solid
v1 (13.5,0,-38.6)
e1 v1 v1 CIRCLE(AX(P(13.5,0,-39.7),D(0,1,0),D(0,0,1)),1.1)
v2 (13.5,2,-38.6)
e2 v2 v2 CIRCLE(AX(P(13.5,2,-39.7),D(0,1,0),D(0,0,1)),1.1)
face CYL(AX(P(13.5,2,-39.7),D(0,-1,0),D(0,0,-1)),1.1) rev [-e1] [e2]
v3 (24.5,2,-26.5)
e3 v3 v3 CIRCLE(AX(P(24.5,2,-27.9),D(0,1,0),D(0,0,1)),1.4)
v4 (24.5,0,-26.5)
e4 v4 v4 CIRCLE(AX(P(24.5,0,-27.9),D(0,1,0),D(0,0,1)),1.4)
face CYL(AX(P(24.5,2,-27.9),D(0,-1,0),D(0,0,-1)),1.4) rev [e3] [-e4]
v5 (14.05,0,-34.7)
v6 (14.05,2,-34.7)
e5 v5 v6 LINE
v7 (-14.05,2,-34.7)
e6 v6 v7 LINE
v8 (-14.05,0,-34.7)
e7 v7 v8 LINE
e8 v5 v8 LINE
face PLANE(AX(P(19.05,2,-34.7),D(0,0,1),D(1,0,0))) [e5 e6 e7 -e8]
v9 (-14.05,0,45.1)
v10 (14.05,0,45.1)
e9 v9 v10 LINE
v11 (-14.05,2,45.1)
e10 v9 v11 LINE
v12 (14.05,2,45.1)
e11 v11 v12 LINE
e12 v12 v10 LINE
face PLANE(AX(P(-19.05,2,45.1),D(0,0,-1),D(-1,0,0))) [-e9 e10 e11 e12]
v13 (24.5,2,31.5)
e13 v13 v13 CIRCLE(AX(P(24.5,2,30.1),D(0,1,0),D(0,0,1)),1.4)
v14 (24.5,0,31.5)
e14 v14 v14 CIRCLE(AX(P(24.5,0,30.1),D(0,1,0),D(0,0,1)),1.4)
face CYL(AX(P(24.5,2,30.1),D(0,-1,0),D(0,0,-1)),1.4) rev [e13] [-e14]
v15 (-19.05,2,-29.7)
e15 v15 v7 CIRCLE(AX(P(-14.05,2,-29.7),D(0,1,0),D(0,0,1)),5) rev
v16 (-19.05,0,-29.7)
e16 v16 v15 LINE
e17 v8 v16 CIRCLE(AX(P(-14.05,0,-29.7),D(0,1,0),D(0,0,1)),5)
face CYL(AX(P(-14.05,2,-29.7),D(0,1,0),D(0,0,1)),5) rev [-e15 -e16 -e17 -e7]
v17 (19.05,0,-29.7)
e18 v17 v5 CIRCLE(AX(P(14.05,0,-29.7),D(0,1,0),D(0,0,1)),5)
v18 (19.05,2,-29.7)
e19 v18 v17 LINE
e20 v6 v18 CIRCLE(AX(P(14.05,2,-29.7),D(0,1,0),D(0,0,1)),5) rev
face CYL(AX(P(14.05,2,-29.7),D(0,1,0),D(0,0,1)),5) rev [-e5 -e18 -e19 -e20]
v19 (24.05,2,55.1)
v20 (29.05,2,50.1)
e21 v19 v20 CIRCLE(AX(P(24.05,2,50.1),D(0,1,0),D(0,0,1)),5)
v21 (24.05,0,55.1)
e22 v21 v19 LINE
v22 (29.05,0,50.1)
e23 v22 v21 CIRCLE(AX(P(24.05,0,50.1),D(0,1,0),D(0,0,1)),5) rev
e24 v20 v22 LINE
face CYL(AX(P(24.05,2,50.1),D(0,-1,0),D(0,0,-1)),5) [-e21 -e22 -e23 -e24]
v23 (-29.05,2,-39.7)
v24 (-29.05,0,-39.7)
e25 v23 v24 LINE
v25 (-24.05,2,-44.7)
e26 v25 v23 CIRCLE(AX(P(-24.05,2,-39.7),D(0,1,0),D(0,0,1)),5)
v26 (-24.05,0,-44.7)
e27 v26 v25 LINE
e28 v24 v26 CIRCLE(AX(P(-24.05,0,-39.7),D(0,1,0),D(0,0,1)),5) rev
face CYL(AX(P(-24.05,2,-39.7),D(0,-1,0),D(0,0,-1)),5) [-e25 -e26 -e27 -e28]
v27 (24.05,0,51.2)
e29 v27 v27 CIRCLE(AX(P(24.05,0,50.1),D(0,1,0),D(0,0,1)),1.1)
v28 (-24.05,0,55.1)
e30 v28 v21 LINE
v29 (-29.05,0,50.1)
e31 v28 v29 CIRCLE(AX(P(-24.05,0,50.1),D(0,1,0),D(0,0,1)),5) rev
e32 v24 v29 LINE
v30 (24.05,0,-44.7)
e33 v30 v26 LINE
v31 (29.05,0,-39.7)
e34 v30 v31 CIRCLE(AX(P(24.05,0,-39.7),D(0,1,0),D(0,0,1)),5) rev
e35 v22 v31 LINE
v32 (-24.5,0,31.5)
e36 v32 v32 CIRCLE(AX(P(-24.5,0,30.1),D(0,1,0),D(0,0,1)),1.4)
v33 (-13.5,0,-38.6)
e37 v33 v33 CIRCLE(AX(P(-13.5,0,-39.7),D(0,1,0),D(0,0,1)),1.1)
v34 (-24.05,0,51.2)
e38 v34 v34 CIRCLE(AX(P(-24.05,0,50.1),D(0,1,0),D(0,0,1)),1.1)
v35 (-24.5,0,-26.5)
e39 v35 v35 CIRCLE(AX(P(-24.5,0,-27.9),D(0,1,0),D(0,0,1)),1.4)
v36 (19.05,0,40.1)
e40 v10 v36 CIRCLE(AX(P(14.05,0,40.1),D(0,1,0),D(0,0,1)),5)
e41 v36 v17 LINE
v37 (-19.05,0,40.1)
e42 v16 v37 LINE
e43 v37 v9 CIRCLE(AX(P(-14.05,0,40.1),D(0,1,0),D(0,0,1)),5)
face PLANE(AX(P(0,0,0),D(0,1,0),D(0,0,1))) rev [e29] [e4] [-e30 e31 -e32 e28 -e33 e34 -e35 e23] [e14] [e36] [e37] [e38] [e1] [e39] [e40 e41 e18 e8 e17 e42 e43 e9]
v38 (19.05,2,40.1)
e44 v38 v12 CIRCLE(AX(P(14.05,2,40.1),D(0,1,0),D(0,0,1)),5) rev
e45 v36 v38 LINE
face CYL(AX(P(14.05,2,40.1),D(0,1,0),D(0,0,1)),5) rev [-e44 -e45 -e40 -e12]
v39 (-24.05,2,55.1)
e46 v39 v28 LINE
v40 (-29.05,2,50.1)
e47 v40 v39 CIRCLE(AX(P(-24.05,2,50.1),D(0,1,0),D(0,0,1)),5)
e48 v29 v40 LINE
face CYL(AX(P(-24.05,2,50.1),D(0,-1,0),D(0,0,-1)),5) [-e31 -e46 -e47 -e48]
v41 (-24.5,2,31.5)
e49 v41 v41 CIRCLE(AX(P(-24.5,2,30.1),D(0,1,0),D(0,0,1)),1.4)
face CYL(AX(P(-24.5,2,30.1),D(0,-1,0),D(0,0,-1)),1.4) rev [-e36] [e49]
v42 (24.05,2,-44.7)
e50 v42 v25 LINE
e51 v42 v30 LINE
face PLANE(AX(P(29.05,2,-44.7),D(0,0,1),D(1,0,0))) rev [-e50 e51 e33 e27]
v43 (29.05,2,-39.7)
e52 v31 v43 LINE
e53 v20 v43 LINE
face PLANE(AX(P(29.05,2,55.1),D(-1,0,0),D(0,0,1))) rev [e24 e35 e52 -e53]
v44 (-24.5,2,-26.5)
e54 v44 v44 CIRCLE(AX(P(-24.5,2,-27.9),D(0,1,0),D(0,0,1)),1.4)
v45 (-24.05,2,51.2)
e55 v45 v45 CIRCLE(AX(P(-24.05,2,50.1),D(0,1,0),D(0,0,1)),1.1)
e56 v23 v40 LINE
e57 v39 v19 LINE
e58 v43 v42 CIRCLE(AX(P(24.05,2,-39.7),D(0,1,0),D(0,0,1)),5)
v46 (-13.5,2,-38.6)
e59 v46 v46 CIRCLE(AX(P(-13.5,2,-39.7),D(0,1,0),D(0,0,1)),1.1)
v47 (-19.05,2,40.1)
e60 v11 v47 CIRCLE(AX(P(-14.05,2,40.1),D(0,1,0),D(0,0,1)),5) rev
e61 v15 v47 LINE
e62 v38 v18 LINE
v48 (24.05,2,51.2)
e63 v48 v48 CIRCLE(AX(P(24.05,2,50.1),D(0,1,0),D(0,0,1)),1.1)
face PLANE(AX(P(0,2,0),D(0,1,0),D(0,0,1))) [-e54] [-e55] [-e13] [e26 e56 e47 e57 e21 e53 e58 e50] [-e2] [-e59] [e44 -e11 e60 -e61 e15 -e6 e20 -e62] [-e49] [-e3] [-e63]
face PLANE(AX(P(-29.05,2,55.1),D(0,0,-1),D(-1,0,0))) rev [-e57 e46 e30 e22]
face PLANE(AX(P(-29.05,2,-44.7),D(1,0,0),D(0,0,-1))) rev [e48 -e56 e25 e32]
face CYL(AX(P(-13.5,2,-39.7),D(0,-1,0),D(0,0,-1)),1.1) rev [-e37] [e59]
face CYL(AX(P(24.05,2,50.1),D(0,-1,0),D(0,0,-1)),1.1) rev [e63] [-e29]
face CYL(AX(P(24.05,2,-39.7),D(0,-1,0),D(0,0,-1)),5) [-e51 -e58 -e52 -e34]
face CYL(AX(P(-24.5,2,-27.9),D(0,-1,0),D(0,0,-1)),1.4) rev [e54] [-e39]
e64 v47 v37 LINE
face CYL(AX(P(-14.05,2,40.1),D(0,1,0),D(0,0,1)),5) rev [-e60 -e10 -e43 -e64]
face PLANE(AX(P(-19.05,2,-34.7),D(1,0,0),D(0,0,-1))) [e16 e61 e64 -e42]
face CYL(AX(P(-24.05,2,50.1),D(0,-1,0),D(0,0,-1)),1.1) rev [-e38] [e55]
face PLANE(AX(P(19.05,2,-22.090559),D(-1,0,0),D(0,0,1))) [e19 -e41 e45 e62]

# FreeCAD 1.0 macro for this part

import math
import FreeCAD as App
import Part
import Sketcher
Q = App.Units.Quantity


def edges_at(feature, points):
    """Names of the edges that pass closest to the given points."""
    edges = feature.Shape.Edges
    near = lambda p: min(range(len(edges)), key=lambda i: edges[i].distToShape(Part.Vertex(*p))[0])
    return sorted({f"Edge{near(p) + 1}" for p in points})

doc = App.newDocument("Part")
params = doc.addObject("Spreadsheet::Sheet", "Params")
for row, (alias, value) in enumerate([
    ("sketch1_diameter", "2.2 mm"),
    ("sketch1_diameter2", "2.8 mm"),
    ("sketch1_diameter3", "1.9 mm"),
    ("sketch1_radius", "2.15 mm"),
    ("sketch1_width", "58.1 mm"),
    ("pad1_length", "2 mm"),
    ("fillet_radius", "5 mm"),
    ("fillet2_radius", "3 mm"),
    ("fillet3_radius", "10 mm"),
    ("sketch2_diameter", "3.2 mm"),
    ("sketch2_diameter2", "1.9 mm"),
    ("pad2_length", "1 mm"),
    ("sketch3_width", "38.1 mm"),
], start=1):
    params.set(f"A{row}", alias)
    params.set(f"B{row}", "=" + value)
    params.setAlias(f"B{row}", alias)

body = doc.addObject("PartDesign::Body", "Body")

sketch1 = body.newObject("Sketcher::SketchObject", "Sketch")
sketch1.AttachmentSupport = (doc.getObject("XZ_Plane"), [""])
sketch1.MapMode = "FlatFace"
sketch1.addGeometry([
    Part.LineSegment(App.Vector(-29.05, -44.7, 0), App.Vector(-29.05, 55.1, 0)),
    Part.LineSegment(App.Vector(-29.05, 55.1, 0), App.Vector(29.05, 55.1, 0)),
    Part.LineSegment(App.Vector(29.05, 55.1, 0), App.Vector(29.05, -44.7, 0)),
    Part.LineSegment(App.Vector(29.05, -44.7, 0), App.Vector(-29.05, -44.7, 0)),
    Part.Circle(App.Vector(-24.05, 50.1, 0), App.Vector(0, 0, 1), 1.1),
    Part.Circle(App.Vector(-24.5, 30.1, 0), App.Vector(0, 0, 1), 1.4),
    Part.Circle(App.Vector(-10.3, 10.3, 0), App.Vector(0, 0, 1), 0.95),
    Part.Circle(App.Vector(24.05, 50.1, 0), App.Vector(0, 0, 1), 1.1),
    Part.Circle(App.Vector(24.5, 30.1, 0), App.Vector(0, 0, 1), 1.4),
    Part.Circle(App.Vector(10.3, 10.3, 0), App.Vector(0, 0, 1), 0.95),
    Part.LineSegment(App.Vector(19.05, 22.090559, 0), App.Vector(19.05, 45.1, 0)),
    Part.LineSegment(App.Vector(19.05, 45.1, 0), App.Vector(-19.05, 45.1, 0)),
    Part.LineSegment(App.Vector(-19.05, 45.1, 0), App.Vector(-19.05, 22.090559, 0)),
    Part.LineSegment(App.Vector(-19.05, 22.090559, 0), App.Vector(-8.77972, 11.82028, 0)),
    Part.ArcOfCircle(Part.Circle(App.Vector(-10.3, 10.3, 0), App.Vector(0, 0, 1), 2.15), math.radians(-135), math.radians(45)),
    Part.LineSegment(App.Vector(-11.82028, 8.77972, 0), App.Vector(-19.05, 16.009441, 0)),
    Part.LineSegment(App.Vector(-19.05, 16.009441, 0), App.Vector(-19.05, -16.009441, 0)),
    Part.LineSegment(App.Vector(-19.05, -16.009441, 0), App.Vector(-11.82028, -8.77972, 0)),
    Part.ArcOfCircle(Part.Circle(App.Vector(-10.3, -10.3, 0), App.Vector(0, 0, 1), 2.15), math.radians(-45), math.radians(135)),
    Part.LineSegment(App.Vector(-8.77972, -11.82028, 0), App.Vector(-19.05, -22.090559, 0)),
    Part.LineSegment(App.Vector(-19.05, -22.090559, 0), App.Vector(-19.05, -34.7, 0)),
    Part.LineSegment(App.Vector(-19.05, -34.7, 0), App.Vector(19.05, -34.7, 0)),
    Part.LineSegment(App.Vector(19.05, -34.7, 0), App.Vector(19.05, -22.090559, 0)),
    Part.LineSegment(App.Vector(19.05, -22.090559, 0), App.Vector(8.77972, -11.82028, 0)),
    Part.ArcOfCircle(Part.Circle(App.Vector(10.3, -10.3, 0), App.Vector(0, 0, 1), 2.15), math.radians(45), math.radians(225)),
    Part.LineSegment(App.Vector(11.82028, -8.77972, 0), App.Vector(19.05, -16.009441, 0)),
    Part.LineSegment(App.Vector(19.05, -16.009441, 0), App.Vector(19.05, 16.009441, 0)),
    Part.LineSegment(App.Vector(19.05, 16.009441, 0), App.Vector(11.82028, 8.77972, 0)),
    Part.ArcOfCircle(Part.Circle(App.Vector(10.3, 10.3, 0), App.Vector(0, 0, 1), 2.15), math.radians(135), math.radians(315)),
    Part.LineSegment(App.Vector(8.77972, 11.82028, 0), App.Vector(19.05, 22.090559, 0)),
    Part.Circle(App.Vector(-10.3, -10.3, 0), App.Vector(0, 0, 1), 0.95),
    Part.Circle(App.Vector(-24.5, -27.9, 0), App.Vector(0, 0, 1), 1.4),
    Part.Circle(App.Vector(-13.5, -39.7, 0), App.Vector(0, 0, 1), 1.1),
    Part.Circle(App.Vector(10.3, -10.3, 0), App.Vector(0, 0, 1), 0.95),
    Part.Circle(App.Vector(24.5, -27.9, 0), App.Vector(0, 0, 1), 1.4),
    Part.Circle(App.Vector(13.5, -39.7, 0), App.Vector(0, 0, 1), 1.1),
], False)
sketch1.addConstraint([
    Sketcher.Constraint("Coincident", 0, 2, 1, 1),
    Sketcher.Constraint("Coincident", 1, 2, 2, 1),
    Sketcher.Constraint("Coincident", 2, 2, 3, 1),
    Sketcher.Constraint("Coincident", 3, 2, 0, 1),
    Sketcher.Constraint("Coincident", 10, 2, 11, 1),
    Sketcher.Constraint("Coincident", 11, 2, 12, 1),
    Sketcher.Constraint("Coincident", 12, 2, 13, 1),
    Sketcher.Constraint("Tangent", 13, 2, 14, 2),
    Sketcher.Constraint("Tangent", 14, 1, 15, 1),
    Sketcher.Constraint("Coincident", 15, 2, 16, 1),
    Sketcher.Constraint("Coincident", 16, 2, 17, 1),
    Sketcher.Constraint("Tangent", 17, 2, 18, 2),
    Sketcher.Constraint("Tangent", 18, 1, 19, 1),
    Sketcher.Constraint("Coincident", 19, 2, 20, 1),
    Sketcher.Constraint("Coincident", 20, 2, 21, 1),
    Sketcher.Constraint("Coincident", 21, 2, 22, 1),
    Sketcher.Constraint("Coincident", 22, 2, 23, 1),
    Sketcher.Constraint("Tangent", 23, 2, 24, 2),
    Sketcher.Constraint("Tangent", 24, 1, 25, 1),
    Sketcher.Constraint("Coincident", 25, 2, 26, 1),
    Sketcher.Constraint("Coincident", 26, 2, 27, 1),
    Sketcher.Constraint("Tangent", 27, 2, 28, 2),
    Sketcher.Constraint("Tangent", 28, 1, 29, 1),
    Sketcher.Constraint("Coincident", 29, 2, 10, 1),
    Sketcher.Constraint("Vertical", 0),
    Sketcher.Constraint("Horizontal", 1),
    Sketcher.Constraint("Vertical", 2),
    Sketcher.Constraint("Horizontal", 3),
    Sketcher.Constraint("Vertical", 10),
    Sketcher.Constraint("Horizontal", 11),
    Sketcher.Constraint("Vertical", 12),
    Sketcher.Constraint("Vertical", 16),
    Sketcher.Constraint("Vertical", 20),
    Sketcher.Constraint("Horizontal", 21),
    Sketcher.Constraint("Vertical", 22),
    Sketcher.Constraint("Vertical", 26),
    Sketcher.Constraint("Coincident", 14, 3, 6, 3),
    Sketcher.Constraint("Coincident", 28, 3, 9, 3),
    Sketcher.Constraint("Coincident", 30, 3, 18, 3),
    Sketcher.Constraint("Coincident", 33, 3, 24, 3),
    Sketcher.Constraint("Equal", 4, 7),
    Sketcher.Constraint("Equal", 5, 8),
    Sketcher.Constraint("Equal", 6, 9),
    Sketcher.Constraint("Equal", 14, 18),
    Sketcher.Constraint("Equal", 18, 24),
    Sketcher.Constraint("Equal", 24, 28),
    Sketcher.Constraint("Equal", 9, 30),
    Sketcher.Constraint("Equal", 8, 31),
    Sketcher.Constraint("Equal", 7, 32),
    Sketcher.Constraint("Equal", 30, 33),
    Sketcher.Constraint("Equal", 31, 34),
    Sketcher.Constraint("Equal", 32, 35),
    Sketcher.Constraint("Symmetric", 9, 3, 18, 3, -1, 1),
    Sketcher.Constraint("Symmetric", 6, 3, 24, 3, -1, 1),
    Sketcher.Constraint("Symmetric", 12, 2, 22, 2, -1, 1),
    Sketcher.Constraint("Symmetric", 15, 2, 25, 2, -1, 1),
    Sketcher.Constraint("Symmetric", 19, 2, 29, 2, -1, 1),
    Sketcher.Constraint("Symmetric", 4, 3, 7, 3, -2),
    Sketcher.Constraint("Symmetric", 5, 3, 8, 3, -2),
    Sketcher.Constraint("Symmetric", 6, 3, 9, 3, -2),
    Sketcher.Constraint("Symmetric", 31, 3, 34, 3, -2),
    Sketcher.Constraint("Symmetric", 32, 3, 35, 3, -2),
    Sketcher.Constraint("Symmetric", 19, 2, 22, 2, -2),
    Sketcher.Constraint("Parallel", 13, 15),
    Sketcher.Constraint("Perpendicular", 15, 17),
    Sketcher.Constraint("Parallel", 17, 19),
    Sketcher.Constraint("Perpendicular", 25, 27),
    Sketcher.Constraint("Vertical", 5, 3, 31, 3),
    Sketcher.Constraint("Vertical", 12, 2, 15, 2),
    Sketcher.Constraint("Diameter", 4, Q("2.2 mm")),
    Sketcher.Constraint("Diameter", 5, Q("2.8 mm")),
    Sketcher.Constraint("Diameter", 6, Q("1.9 mm")),
    Sketcher.Constraint("Radius", 14, Q("2.15 mm")),
    Sketcher.Constraint("DistanceX", 1, 1, 1, 2, Q("58.1 mm")),
    Sketcher.Constraint("DistanceX", 11, 2, 11, 1, Q("38.1 mm")),
    Sketcher.Constraint("DistanceY", 0, 1, 0, 2, Q("99.8 mm")),
    Sketcher.Constraint("DistanceY", 5, 3, 4, 3, Q("20 mm")),
    Sketcher.Constraint("DistanceX", 5, 3, 8, 3, Q("49 mm")),
    Sketcher.Constraint("DistanceX", 31, 3, 32, 3, Q("11 mm")),
    Sketcher.Constraint("DistanceY", 32, 3, 6, 3, Q("50 mm")),
    Sketcher.Constraint("DistanceX", 0, 2, 4, 3, Q("5 mm")),
    Sketcher.Constraint("DistanceY", 4, 3, 0, 2, Q("5 mm")),
    Sketcher.Constraint("DistanceX", 7, 3, 1, 2, Q("5 mm")),
    Sketcher.Constraint("DistanceY", 2, 2, 35, 3, Q("5 mm")),
    Sketcher.Constraint("DistanceY", 10, 2, 7, 3, Q("5 mm")),
    Sketcher.Constraint("DistanceY", 32, 3, 20, 2, Q("5 mm")),
    Sketcher.Constraint("DistanceY", -1, 1, 4, 3, Q("50.1 mm")),
    Sketcher.Constraint("DistanceX", 6, 3, -1, 1, Q("10.3 mm")),
    Sketcher.Constraint("DistanceY", 31, 3, -1, 1, Q("27.9 mm")),
])
sketch1.setExpression("Constraints[69]", "Params.sketch1_diameter")
sketch1.setExpression("Constraints[70]", "Params.sketch1_diameter2")
sketch1.setExpression("Constraints[71]", "Params.sketch1_diameter3")
sketch1.setExpression("Constraints[72]", "Params.sketch1_radius")
sketch1.setExpression("Constraints[73]", "Params.sketch1_width")
pad1 = body.newObject("PartDesign::Pad", "Pad")
pad1.Profile = sketch1
pad1.setExpression("Length", "Params.pad1_length")
pad1.Reversed = True
doc.recompute()

fillet = body.newObject("PartDesign::Fillet", "Fillet")
fillet.Base = (pad1, edges_at(pad1, [
    (19.05, 1, -34.7),
    (-19.05, 1, -34.7),
    (-19.05, 1, 45.1),
    (19.05, 1, 45.1),
    (29.05, 1, -44.7),
    (29.05, 1, 55.1),
    (-29.05, 1, 55.1),
    (-29.05, 1, -44.7),
]))
fillet.setExpression("Radius", "Params.fillet_radius")
doc.recompute()

fillet2 = body.newObject("PartDesign::Fillet", "Fillet001")
fillet2.Base = (fillet, edges_at(fillet, [
    (-19.05, 1, -16.009),
    (-19.05, 1, 16.009),
    (19.05, 1, 16.009),
    (19.05, 1, -16.009),
]))
fillet2.setExpression("Radius", "Params.fillet2_radius")
doc.recompute()

fillet3 = body.newObject("PartDesign::Fillet", "Fillet002")
fillet3.Base = (fillet2, edges_at(fillet2, [
    (19.05, 1, -22.091),
    (-19.05, 1, -22.091),
    (-19.05, 1, 22.091),
    (19.05, 1, 22.091),
]))
fillet3.setExpression("Radius", "Params.fillet3_radius")

sketch2 = body.newObject("Sketcher::SketchObject", "Sketch001")
sketch2.AttachmentSupport = (doc.getObject("XZ_Plane"), [""])
sketch2.MapMode = "FlatFace"
sketch2.AttachmentOffset = App.Placement(App.Vector(0, 0, 1), App.Rotation())
sketch2.addGeometry([
    Part.Circle(App.Vector(-10.3, 10.3, 0), App.Vector(0, 0, 1), 1.6),
    Part.Circle(App.Vector(-10.3, 10.3, 0), App.Vector(0, 0, 1), 0.95),
    Part.Circle(App.Vector(10.3, 10.3, 0), App.Vector(0, 0, 1), 1.6),
    Part.Circle(App.Vector(10.3, 10.3, 0), App.Vector(0, 0, 1), 0.95),
    Part.Circle(App.Vector(10.3, -10.3, 0), App.Vector(0, 0, 1), 1.6),
    Part.Circle(App.Vector(10.3, -10.3, 0), App.Vector(0, 0, 1), 0.95),
    Part.Circle(App.Vector(-10.3, -10.3, 0), App.Vector(0, 0, 1), 1.6),
    Part.Circle(App.Vector(-10.3, -10.3, 0), App.Vector(0, 0, 1), 0.95),
], False)
sketch2.addConstraint([
    Sketcher.Constraint("Coincident", 1, 3, 0, 3),
    Sketcher.Constraint("Coincident", 3, 3, 2, 3),
    Sketcher.Constraint("Coincident", 5, 3, 4, 3),
    Sketcher.Constraint("Coincident", 7, 3, 6, 3),
    Sketcher.Constraint("Equal", 0, 2),
    Sketcher.Constraint("Equal", 1, 3),
    Sketcher.Constraint("Equal", 2, 4),
    Sketcher.Constraint("Equal", 3, 5),
    Sketcher.Constraint("Equal", 4, 6),
    Sketcher.Constraint("Equal", 5, 7),
    Sketcher.Constraint("Symmetric", 0, 3, 4, 3, -1, 1),
    Sketcher.Constraint("Symmetric", 2, 3, 6, 3, -1, 1),
    Sketcher.Constraint("Symmetric", 0, 3, 2, 3, -2),
    Sketcher.Constraint("Diameter", 0, Q("3.2 mm")),
    Sketcher.Constraint("Diameter", 1, Q("1.9 mm")),
    Sketcher.Constraint("DistanceX", 0, 3, -1, 1, Q("10.3 mm")),
    Sketcher.Constraint("DistanceY", -1, 1, 0, 3, Q("10.3 mm")),
])
sketch2.setExpression("Constraints[13]", "Params.sketch2_diameter")
sketch2.setExpression("Constraints[14]", "Params.sketch2_diameter2")
pad2 = body.newObject("PartDesign::Pad", "Pad001")
pad2.Profile = sketch2
pad2.setExpression("Length", "Params.pad2_length")
pad2.Reversed = True

sketch3 = body.newObject("Sketcher::SketchObject", "Sketch002")
sketch3.AttachmentSupport = (doc.getObject("XZ_Plane"), [""])
sketch3.MapMode = "FlatFace"
sketch3.AttachmentOffset = App.Placement(App.Vector(0, 0, -2), App.Rotation())
sketch3.addGeometry([
    Part.LineSegment(App.Vector(-19.05, -27.966347, 0), App.Vector(-19.05, 33.166347, 0)),
    Part.LineSegment(App.Vector(-19.05, 33.166347, 0), App.Vector(19.05, 33.166347, 0)),
    Part.LineSegment(App.Vector(19.05, 33.166347, 0), App.Vector(19.05, -27.966347, 0)),
    Part.LineSegment(App.Vector(19.05, -27.966347, 0), App.Vector(-19.05, -27.966347, 0)),
], False)
sketch3.addConstraint([
    Sketcher.Constraint("Coincident", 0, 2, 1, 1),
    Sketcher.Constraint("Coincident", 1, 2, 2, 1),
    Sketcher.Constraint("Coincident", 2, 2, 3, 1),
    Sketcher.Constraint("Coincident", 3, 2, 0, 1),
    Sketcher.Constraint("Vertical", 0),
    Sketcher.Constraint("Horizontal", 1),
    Sketcher.Constraint("Vertical", 2),
    Sketcher.Constraint("Horizontal", 3),
    Sketcher.Constraint("DistanceX", 1, 1, 1, 2, Q("38.1 mm")),
    Sketcher.Constraint("DistanceX", 0, 2, -1, 1, Q("19.05 mm")),
    Sketcher.Constraint("DistanceY", 0, 1, 0, 2, Q("61.132695 mm")),
    Sketcher.Constraint("DistanceY", -1, 1, 0, 2, Q("33.166347 mm")),
])
sketch3.setExpression("Constraints[8]", "Params.sketch3_width")
pocket1 = body.newObject("PartDesign::Pocket", "Pocket")
pocket1.Profile = sketch3
pocket1.Type = "ThroughAll"
pocket1.Reversed = True

doc.recompute()
